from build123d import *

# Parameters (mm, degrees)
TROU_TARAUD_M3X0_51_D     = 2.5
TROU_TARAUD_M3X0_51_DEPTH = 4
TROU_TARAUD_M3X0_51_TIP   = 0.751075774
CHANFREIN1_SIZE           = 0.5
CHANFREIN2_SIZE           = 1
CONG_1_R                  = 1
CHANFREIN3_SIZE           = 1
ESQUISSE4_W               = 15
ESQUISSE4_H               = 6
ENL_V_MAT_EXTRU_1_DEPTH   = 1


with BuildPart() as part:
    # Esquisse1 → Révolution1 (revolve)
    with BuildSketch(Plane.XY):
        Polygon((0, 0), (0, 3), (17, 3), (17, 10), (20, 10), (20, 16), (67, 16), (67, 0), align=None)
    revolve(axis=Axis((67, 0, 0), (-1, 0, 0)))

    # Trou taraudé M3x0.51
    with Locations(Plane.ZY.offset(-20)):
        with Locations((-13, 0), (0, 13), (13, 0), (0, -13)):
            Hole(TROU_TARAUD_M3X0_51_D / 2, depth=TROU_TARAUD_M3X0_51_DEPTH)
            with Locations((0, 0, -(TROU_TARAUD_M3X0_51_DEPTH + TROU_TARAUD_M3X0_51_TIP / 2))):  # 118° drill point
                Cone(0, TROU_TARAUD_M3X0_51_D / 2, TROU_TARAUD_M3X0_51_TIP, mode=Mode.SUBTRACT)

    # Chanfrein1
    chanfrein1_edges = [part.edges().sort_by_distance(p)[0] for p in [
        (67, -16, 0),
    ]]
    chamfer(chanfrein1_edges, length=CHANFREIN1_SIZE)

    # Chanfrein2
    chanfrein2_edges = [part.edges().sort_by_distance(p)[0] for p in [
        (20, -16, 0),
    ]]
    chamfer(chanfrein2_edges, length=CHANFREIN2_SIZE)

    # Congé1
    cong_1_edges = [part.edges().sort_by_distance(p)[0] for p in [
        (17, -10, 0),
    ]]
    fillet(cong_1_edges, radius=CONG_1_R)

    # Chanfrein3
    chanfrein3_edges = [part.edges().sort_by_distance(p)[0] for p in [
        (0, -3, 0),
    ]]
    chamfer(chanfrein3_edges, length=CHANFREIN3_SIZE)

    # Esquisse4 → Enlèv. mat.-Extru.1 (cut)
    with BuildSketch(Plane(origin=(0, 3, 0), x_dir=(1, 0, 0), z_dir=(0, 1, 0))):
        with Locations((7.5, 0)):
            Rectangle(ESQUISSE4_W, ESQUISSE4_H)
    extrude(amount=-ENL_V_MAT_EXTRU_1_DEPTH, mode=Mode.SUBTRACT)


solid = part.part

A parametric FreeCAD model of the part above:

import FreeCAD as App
import Part
import Sketcher
from FreeCAD import Vector


def edges_at(feature, points):
    """Names of the edges that pass closest to the given points."""
    edges = feature.Shape.Edges
    near = lambda p: min(range(len(edges)), key=lambda i: edges[i].distToShape(Part.Vertex(*p))[0])
    return sorted({f"Edge{near(p) + 1}" for p in points})

doc = App.newDocument("Part")
params = doc.addObject("Spreadsheet::Sheet", "Params")
for row, (alias, value) in enumerate([
    ("sketch1_width", "67 mm"),
    ("sketch1_width2", "47 mm"),
    ("sketch1_width3", "3 mm"),
    ("sketch1_height", "16 mm"),
    ("sketch1_height2", "6 mm"),
    ("revolution_angle", "360 deg"),
    ("sketch2_diameter", "2.5 mm"),
    ("hole_diameter", "2.5 mm"),
    ("hole_depth", "4 mm"),
    ("chamfer_size", "0.5 mm"),
    ("chamfer2_size", "1 mm"),
    ("fillet_radius", "1 mm"),
    ("chamfer3_size", "1 mm"),
    ("sketch3_width", "15 mm"),
    ("sketch3_height", "6 mm"),
    ("pocket1_length", "1 mm"),
], start=1):
    params.set(f"A{row}", alias)
    params.set(f"B{row}", "=" + value)
    params.setAlias(f"B{row}", alias)

body = doc.addObject("PartDesign::Body", "Body")

sketch1 = body.newObject("Sketcher::SketchObject", "Sketch")
sketch1.AttachmentSupport = (doc.getObject("XY_Plane"), [""])
sketch1.MapMode = "FlatFace"
sketch1.addGeometry([
    Part.LineSegment(Vector(0, 3, 0), Vector(0, 0, 0)),
    Part.LineSegment(Vector(0, 0, 0), Vector(67, 0, 0)),
    Part.LineSegment(Vector(67, 0, 0), Vector(67, 16, 0)),
    Part.LineSegment(Vector(67, 16, 0), Vector(20, 16, 0)),
    Part.LineSegment(Vector(20, 16, 0), Vector(20, 10, 0)),
    Part.LineSegment(Vector(20, 10, 0), Vector(17, 10, 0)),
    Part.LineSegment(Vector(17, 10, 0), Vector(17, 3, 0)),
    Part.LineSegment(Vector(17, 3, 0), Vector(0, 3, 0)),
], False)
sketch1.addConstraint([
    Sketcher.Constraint("Coincident", 0, 2, 1, 1),
    Sketcher.Constraint("Coincident", 1, 2, 2, 1),
    Sketcher.Constraint("Coincident", 2, 2, 3, 1),
    Sketcher.Constraint("Coincident", 3, 2, 4, 1),
    Sketcher.Constraint("Coincident", 4, 2, 5, 1),
    Sketcher.Constraint("Coincident", 5, 2, 6, 1),
    Sketcher.Constraint("Coincident", 6, 2, 7, 1),
    Sketcher.Constraint("Coincident", 7, 2, 0, 1),
    Sketcher.Constraint("Vertical", 0),
    Sketcher.Constraint("Horizontal", 1),
    Sketcher.Constraint("Vertical", 2),
    Sketcher.Constraint("Horizontal", 3),
    Sketcher.Constraint("Vertical", 4),
    Sketcher.Constraint("Horizontal", 5),
    Sketcher.Constraint("Vertical", 6),
    Sketcher.Constraint("Horizontal", 7),
    Sketcher.Constraint("Coincident", 0, 2, -1, 1),
    Sketcher.Constraint("Equal", 5, 0),
    Sketcher.Constraint("DistanceX", 1, 1, 1, 2, 67.0),
    Sketcher.Constraint("DistanceX", 3, 2, 3, 1, 47.0),
    Sketcher.Constraint("DistanceX", 5, 2, 5, 1, 3.0),
    Sketcher.Constraint("DistanceY", 2, 1, 2, 2, 16.0),
    Sketcher.Constraint("DistanceY", 4, 2, 4, 1, 6.0),
])
sketch1.setExpression("Constraints[18]", "Params.sketch1_width")
sketch1.setExpression("Constraints[19]", "Params.sketch1_width2")
sketch1.setExpression("Constraints[20]", "Params.sketch1_width3")
sketch1.setExpression("Constraints[21]", "Params.sketch1_height")
sketch1.setExpression("Constraints[22]", "Params.sketch1_height2")
revolution = body.newObject("PartDesign::Revolution", "Revolution")
revolution.Profile = sketch1
revolution.ReferenceAxis = (sketch1, ["H_Axis"])
revolution.setExpression("Angle", "Params.revolution_angle")

sketch2 = body.newObject("Sketcher::SketchObject", "Sketch001")
sketch2.AttachmentSupport = (doc.getObject("YZ_Plane"), [""])
sketch2.MapMode = "FlatFace"
sketch2.AttachmentOffset = App.Placement(Vector(0, 0, 20), App.Rotation())
sketch2.addGeometry([
    Part.Circle(Vector(0, -13, 0), Vector(0, 0, 1), 1.2),
    Part.Circle(Vector(13, 0, 0), Vector(0, 0, 1), 1.2),
    Part.Circle(Vector(0, 13, 0), Vector(0, 0, 1), 1.2),
    Part.Circle(Vector(-13, 0, 0), Vector(0, 0, 1), 1.2),
], False)
sketch2.addConstraint([
    Sketcher.Constraint("Equal", 0, 1),
    Sketcher.Constraint("Equal", 1, 2),
    Sketcher.Constraint("Equal", 2, 3),
    Sketcher.Constraint("Symmetric", 0, 3, 2, 3, -1, 1),
    Sketcher.Constraint("Symmetric", 1, 3, 3, 3, -1, 1),
    Sketcher.Constraint("PointOnObject", 0, 3, -2),
    Sketcher.Constraint("PointOnObject", 1, 3, -1),
    Sketcher.Constraint("Diameter", 0, 2.5),
    Sketcher.Constraint("DistanceY", 0, 3, -1, 1, 13.0),
    Sketcher.Constraint("DistanceX", -1, 1, 1, 3, 13.0),
])
sketch2.setExpression("Constraints[7]", "Params.sketch2_diameter")
doc.recompute()
hole = body.newObject("PartDesign::Hole", "Hole")
hole.Profile = sketch2
hole.ThreadType = "None"
hole.setExpression("Diameter", "Params.hole_diameter")
hole.DepthType = "Dimension"
hole.setExpression("Depth", "Params.hole_depth")
hole.DrillPoint = "Angled"
hole.DrillPointAngle = 118
hole.Reversed = True
doc.recompute()

chamfer = body.newObject("PartDesign::Chamfer", "Chamfer")
chamfer.Base = (hole, edges_at(hole, [(67, -16, 0)]))
chamfer.setExpression("Size", "Params.chamfer_size")
doc.recompute()

chamfer2 = body.newObject("PartDesign::Chamfer", "Chamfer001")
chamfer2.Base = (chamfer, edges_at(chamfer, [(20, -16, 0)]))
chamfer2.setExpression("Size", "Params.chamfer2_size")
doc.recompute()

fillet = body.newObject("PartDesign::Fillet", "Fillet")
fillet.Base = (chamfer2, edges_at(chamfer2, [(17, -10, 0)]))
fillet.setExpression("Radius", "Params.fillet_radius")
doc.recompute()

chamfer3 = body.newObject("PartDesign::Chamfer", "Chamfer002")
chamfer3.Base = (fillet, edges_at(fillet, [(0, -3, 0)]))
chamfer3.setExpression("Size", "Params.chamfer3_size")

sketch3 = body.newObject("Sketcher::SketchObject", "Sketch002")
sketch3.AttachmentSupport = (doc.getObject("XZ_Plane"), [""])
sketch3.MapMode = "FlatFace"
sketch3.AttachmentOffset = App.Placement(Vector(0, 0, -3), App.Rotation())
sketch3.addGeometry([
    Part.LineSegment(Vector(0, -3, 0), Vector(0, 3, 0)),
    Part.LineSegment(Vector(0, 3, 0), Vector(15, 3, 0)),
    Part.LineSegment(Vector(15, 3, 0), Vector(15, -3, 0)),
    Part.LineSegment(Vector(15, -3, 0), Vector(0, -3, 0)),
], False)
sketch3.addConstraint([
    Sketcher.Constraint("Coincident", 0, 2, 1, 1),
    Sketcher.Constraint("Coincident", 1, 2, 2, 1),
    Sketcher.Constraint("Coincident", 2, 2, 3, 1),
    Sketcher.Constraint("Coincident", 3, 2, 0, 1),
    Sketcher.Constraint("Vertical", 0),
    Sketcher.Constraint("Horizontal", 1),
    Sketcher.Constraint("Vertical", 2),
    Sketcher.Constraint("Horizontal", 3),
    Sketcher.Constraint("Symmetric", 0, 2, 3, 2, -1, 1),
    Sketcher.Constraint("DistanceX", 1, 1, 1, 2, 15.0),
    Sketcher.Constraint("DistanceY", 0, 1, 0, 2, 6.0),
])
sketch3.setExpression("Constraints[9]", "Params.sketch3_width")
sketch3.setExpression("Constraints[10]", "Params.sketch3_height")
pocket1 = body.newObject("PartDesign::Pocket", "Pocket")
pocket1.Profile = sketch3
pocket1.setExpression("Length", "Params.pocket1_length")
pocket1.Reversed = True

doc.recompute()
